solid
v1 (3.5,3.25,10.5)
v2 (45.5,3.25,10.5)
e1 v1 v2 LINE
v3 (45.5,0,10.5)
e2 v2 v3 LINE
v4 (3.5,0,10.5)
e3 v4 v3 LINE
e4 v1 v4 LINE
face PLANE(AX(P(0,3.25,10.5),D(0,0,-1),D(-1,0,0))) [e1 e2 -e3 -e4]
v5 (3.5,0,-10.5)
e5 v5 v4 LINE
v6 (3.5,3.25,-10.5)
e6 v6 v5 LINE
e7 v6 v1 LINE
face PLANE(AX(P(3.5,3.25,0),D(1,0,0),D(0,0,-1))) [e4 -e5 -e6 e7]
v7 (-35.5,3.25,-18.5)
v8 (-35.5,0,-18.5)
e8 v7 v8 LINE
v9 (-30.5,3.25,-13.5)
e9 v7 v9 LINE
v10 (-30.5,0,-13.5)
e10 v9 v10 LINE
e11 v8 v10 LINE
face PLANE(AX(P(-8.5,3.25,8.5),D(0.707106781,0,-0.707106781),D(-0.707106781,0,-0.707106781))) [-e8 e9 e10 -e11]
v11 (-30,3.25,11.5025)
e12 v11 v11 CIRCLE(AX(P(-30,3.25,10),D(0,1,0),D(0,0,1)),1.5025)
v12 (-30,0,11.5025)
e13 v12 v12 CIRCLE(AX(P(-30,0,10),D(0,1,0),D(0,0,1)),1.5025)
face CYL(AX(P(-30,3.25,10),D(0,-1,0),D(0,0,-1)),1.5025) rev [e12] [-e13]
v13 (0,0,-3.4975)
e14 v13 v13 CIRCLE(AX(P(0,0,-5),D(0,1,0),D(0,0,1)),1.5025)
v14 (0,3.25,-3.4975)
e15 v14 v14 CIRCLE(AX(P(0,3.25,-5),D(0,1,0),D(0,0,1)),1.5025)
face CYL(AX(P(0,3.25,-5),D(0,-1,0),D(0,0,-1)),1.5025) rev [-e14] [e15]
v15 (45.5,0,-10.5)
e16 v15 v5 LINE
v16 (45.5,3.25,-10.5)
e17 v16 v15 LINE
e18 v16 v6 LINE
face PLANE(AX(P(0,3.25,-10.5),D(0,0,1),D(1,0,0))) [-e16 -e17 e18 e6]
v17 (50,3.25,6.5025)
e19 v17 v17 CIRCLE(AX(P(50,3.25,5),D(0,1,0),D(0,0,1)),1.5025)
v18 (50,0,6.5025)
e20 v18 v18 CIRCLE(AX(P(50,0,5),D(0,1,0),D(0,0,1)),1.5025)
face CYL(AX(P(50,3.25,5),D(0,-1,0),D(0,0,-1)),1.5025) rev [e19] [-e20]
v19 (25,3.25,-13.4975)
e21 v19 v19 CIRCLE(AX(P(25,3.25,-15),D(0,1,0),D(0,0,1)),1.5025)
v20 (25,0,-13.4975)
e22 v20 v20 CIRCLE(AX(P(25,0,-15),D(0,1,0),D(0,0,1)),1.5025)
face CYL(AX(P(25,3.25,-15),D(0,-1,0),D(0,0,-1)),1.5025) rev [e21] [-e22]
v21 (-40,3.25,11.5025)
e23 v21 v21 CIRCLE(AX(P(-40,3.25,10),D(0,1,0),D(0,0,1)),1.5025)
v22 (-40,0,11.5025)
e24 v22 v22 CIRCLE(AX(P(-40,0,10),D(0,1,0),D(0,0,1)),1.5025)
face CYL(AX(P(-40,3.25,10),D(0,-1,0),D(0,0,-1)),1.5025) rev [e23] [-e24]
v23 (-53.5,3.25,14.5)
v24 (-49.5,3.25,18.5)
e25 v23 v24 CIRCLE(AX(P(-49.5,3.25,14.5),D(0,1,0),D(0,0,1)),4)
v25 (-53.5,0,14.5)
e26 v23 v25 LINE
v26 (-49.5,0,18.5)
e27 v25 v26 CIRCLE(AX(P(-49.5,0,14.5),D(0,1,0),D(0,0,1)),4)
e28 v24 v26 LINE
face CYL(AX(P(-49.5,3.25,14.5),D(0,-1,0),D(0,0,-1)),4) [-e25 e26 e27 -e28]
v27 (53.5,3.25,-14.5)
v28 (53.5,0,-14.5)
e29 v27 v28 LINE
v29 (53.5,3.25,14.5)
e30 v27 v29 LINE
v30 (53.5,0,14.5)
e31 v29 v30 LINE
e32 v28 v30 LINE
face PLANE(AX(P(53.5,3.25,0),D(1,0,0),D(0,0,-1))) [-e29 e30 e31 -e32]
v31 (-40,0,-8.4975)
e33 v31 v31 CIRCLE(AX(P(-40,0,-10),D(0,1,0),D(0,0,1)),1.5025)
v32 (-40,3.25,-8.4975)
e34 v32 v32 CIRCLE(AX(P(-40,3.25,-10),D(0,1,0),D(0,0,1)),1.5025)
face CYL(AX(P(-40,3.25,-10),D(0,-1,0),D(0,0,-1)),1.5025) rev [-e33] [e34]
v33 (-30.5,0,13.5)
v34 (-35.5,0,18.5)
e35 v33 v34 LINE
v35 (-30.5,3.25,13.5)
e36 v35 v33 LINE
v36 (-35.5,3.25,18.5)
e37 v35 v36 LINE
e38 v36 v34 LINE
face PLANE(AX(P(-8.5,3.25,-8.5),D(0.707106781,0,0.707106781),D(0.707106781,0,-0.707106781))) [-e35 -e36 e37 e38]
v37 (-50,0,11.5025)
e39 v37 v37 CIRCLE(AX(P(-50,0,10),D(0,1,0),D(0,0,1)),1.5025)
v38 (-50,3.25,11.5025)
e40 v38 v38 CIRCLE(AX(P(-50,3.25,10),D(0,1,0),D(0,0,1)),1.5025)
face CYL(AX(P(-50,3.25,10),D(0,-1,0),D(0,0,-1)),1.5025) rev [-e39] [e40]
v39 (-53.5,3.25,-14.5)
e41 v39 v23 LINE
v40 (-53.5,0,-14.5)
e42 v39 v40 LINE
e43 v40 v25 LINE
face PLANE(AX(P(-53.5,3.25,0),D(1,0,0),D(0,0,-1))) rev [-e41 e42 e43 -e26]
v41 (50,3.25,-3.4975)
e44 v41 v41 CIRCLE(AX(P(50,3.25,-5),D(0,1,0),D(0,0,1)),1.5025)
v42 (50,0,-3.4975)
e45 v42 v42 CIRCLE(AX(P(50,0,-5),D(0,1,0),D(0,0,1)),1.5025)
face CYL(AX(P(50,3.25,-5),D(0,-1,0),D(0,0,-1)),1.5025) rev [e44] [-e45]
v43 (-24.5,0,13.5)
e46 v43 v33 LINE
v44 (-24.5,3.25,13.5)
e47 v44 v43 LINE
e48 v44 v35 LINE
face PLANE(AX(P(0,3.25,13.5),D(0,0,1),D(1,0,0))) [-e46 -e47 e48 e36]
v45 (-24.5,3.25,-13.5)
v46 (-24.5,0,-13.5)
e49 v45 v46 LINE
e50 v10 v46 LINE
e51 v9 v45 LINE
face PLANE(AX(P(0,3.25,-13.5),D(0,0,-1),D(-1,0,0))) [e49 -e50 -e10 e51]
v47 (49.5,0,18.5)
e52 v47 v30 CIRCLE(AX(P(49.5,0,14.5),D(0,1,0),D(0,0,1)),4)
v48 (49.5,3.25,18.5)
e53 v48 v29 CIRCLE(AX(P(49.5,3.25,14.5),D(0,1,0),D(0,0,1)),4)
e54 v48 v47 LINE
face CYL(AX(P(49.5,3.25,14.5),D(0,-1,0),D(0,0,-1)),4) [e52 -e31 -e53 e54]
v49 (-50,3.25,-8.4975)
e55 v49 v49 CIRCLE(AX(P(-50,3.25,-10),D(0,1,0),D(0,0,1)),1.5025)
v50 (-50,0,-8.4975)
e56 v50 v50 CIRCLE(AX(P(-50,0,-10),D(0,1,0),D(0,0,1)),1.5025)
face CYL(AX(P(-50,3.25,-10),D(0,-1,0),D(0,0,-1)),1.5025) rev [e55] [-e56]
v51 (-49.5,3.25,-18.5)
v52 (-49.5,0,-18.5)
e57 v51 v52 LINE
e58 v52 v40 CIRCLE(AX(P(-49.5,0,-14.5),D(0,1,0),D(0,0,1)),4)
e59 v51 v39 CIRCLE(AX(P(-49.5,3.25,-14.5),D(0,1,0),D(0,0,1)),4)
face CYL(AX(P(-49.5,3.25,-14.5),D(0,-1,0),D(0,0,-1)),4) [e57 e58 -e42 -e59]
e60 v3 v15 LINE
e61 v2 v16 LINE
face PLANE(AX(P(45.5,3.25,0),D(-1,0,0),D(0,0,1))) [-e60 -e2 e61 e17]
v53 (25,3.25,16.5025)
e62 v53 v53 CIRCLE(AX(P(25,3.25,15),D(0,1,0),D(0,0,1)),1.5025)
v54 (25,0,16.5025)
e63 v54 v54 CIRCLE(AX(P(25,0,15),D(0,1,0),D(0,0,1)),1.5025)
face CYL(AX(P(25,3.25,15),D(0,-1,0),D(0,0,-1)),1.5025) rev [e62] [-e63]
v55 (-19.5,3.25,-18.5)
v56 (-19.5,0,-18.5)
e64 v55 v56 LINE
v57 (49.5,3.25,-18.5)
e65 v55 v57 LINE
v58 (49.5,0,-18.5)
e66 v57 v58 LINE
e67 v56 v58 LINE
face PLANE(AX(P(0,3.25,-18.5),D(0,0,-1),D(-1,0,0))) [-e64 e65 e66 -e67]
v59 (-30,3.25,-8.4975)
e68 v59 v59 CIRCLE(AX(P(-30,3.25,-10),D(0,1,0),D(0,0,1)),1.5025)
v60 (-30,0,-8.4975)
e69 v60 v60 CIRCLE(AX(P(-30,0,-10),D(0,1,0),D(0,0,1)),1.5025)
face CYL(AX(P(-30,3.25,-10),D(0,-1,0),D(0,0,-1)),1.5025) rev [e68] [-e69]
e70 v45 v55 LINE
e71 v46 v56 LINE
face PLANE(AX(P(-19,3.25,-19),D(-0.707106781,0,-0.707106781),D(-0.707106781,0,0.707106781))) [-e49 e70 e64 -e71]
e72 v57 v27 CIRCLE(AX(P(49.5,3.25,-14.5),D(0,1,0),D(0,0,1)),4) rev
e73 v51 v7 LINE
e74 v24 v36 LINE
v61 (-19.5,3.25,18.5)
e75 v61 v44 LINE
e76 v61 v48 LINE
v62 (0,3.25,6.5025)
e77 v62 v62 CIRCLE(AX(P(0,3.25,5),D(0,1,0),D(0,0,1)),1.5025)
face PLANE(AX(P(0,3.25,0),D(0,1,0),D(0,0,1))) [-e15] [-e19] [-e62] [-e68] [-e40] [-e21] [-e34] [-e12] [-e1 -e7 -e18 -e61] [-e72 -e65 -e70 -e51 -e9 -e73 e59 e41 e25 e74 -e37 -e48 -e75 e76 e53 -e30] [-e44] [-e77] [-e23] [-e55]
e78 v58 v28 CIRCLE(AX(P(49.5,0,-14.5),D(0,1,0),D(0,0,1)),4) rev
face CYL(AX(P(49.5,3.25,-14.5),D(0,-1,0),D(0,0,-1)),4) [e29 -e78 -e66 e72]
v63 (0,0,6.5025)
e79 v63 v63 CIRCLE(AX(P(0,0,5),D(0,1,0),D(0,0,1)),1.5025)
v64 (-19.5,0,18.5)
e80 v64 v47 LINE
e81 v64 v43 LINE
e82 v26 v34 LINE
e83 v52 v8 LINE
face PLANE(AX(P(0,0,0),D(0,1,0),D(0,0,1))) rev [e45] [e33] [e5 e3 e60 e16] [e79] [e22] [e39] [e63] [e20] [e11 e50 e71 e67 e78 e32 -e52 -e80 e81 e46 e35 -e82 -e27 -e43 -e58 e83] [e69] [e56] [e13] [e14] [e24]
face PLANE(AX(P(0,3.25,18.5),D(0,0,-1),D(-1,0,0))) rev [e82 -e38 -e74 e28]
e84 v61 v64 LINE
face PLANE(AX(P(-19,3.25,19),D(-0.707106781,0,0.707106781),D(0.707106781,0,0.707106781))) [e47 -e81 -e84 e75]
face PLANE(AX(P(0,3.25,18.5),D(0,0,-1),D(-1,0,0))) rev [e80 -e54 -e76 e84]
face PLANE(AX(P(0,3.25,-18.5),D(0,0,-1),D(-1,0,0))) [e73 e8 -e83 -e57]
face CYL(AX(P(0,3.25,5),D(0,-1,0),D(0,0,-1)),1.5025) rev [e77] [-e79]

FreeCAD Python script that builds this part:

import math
import FreeCAD as App
import Part
import Sketcher
from FreeCAD import Vector


def add_polygon(sketch, points):
    """Adds a closed chain of lines whose ends are joined by coincident constraints."""
    first, n = sketch.GeometryCount, len(points)
    for a, b in zip(points, points[1:] + points[:1]):
        sketch.addGeometry(Part.LineSegment(App.Vector(*a, 0), App.Vector(*b, 0)), False)
    for i in range(n):
        sketch.addConstraint(Sketcher.Constraint("Coincident", first + i, 2, first + (i + 1) % n, 1))

doc = App.newDocument("Part")
body = doc.addObject("PartDesign::Body", "Body")

# Sketch on XZ plane
sketch1 = body.newObject("Sketcher::SketchObject", "Sketch")
sketch1.AttachmentSupport = (doc.getObject("XZ_Plane"), [""])
sketch1.MapMode = "FlatFace"
sketch1.addGeometry(Part.LineSegment(Vector(-35.5, -18.5, 0), Vector(-49.5, -18.5, 0)), False)  # 0
sketch1.addGeometry(Part.ArcOfCircle(Part.Circle(Vector(-49.5, -14.5, 0), Vector(0, 0, 1), 4), math.radians(180), math.radians(270)), False)  # 1
sketch1.addGeometry(Part.LineSegment(Vector(-53.5, -14.5, 0), Vector(-53.5, 14.5, 0)), False)  # 2
sketch1.addGeometry(Part.ArcOfCircle(Part.Circle(Vector(-49.5, 14.5, 0), Vector(0, 0, 1), 4), math.radians(90), math.radians(180)), False)  # 3
sketch1.addGeometry(Part.LineSegment(Vector(-49.5, 18.5, 0), Vector(-35.5, 18.5, 0)), False)  # 4
sketch1.addGeometry(Part.LineSegment(Vector(-35.5, 18.5, 0), Vector(-30.5, 13.5, 0)), False)  # 5
sketch1.addGeometry(Part.LineSegment(Vector(-30.5, 13.5, 0), Vector(-24.5, 13.5, 0)), False)  # 6
sketch1.addGeometry(Part.LineSegment(Vector(-24.5, 13.5, 0), Vector(-19.5, 18.5, 0)), False)  # 7
sketch1.addGeometry(Part.LineSegment(Vector(-19.5, 18.5, 0), Vector(49.5, 18.5, 0)), False)  # 8
sketch1.addGeometry(Part.ArcOfCircle(Part.Circle(Vector(49.5, 14.5, 0), Vector(0, 0, 1), 4), math.radians(0), math.radians(90)), False)  # 9
sketch1.addGeometry(Part.LineSegment(Vector(53.5, 14.5, 0), Vector(53.5, -14.5, 0)), False)  # 10
sketch1.addGeometry(Part.ArcOfCircle(Part.Circle(Vector(49.5, -14.5, 0), Vector(0, 0, 1), 4), math.radians(-90), math.radians(0)), False)  # 11
sketch1.addGeometry(Part.LineSegment(Vector(49.5, -18.5, 0), Vector(-19.5, -18.5, 0)), False)  # 12
sketch1.addGeometry(Part.LineSegment(Vector(-19.5, -18.5, 0), Vector(-24.5, -13.5, 0)), False)  # 13
sketch1.addGeometry(Part.LineSegment(Vector(-24.5, -13.5, 0), Vector(-30.5, -13.5, 0)), False)  # 14
sketch1.addGeometry(Part.LineSegment(Vector(-30.5, -13.5, 0), Vector(-35.5, -18.5, 0)), False)  # 15
sketch1.addGeometry(Part.Circle(Vector(25, 15, 0), Vector(0, 0, 1), 1.5), False)  # 16
sketch1.addGeometry(Part.Circle(Vector(50, 5, 0), Vector(0, 0, 1), 1.5), False)  # 17
sketch1.addGeometry(Part.Circle(Vector(-30, 10, 0), Vector(0, 0, 1), 1.5), False)  # 18
sketch1.addGeometry(Part.Circle(Vector(-40, 10, 0), Vector(0, 0, 1), 1.5), False)  # 19
sketch1.addGeometry(Part.Circle(Vector(-50, 10, 0), Vector(0, 0, 1), 1.5), False)  # 20
sketch1.addGeometry(Part.Circle(Vector(0, 5, 0), Vector(0, 0, 1), 1.5), False)  # 21
sketch1.addGeometry(Part.Circle(Vector(50, -5, 0), Vector(0, 0, 1), 1.5), False)  # 22
add_polygon(sketch1, [(3.5, 10.5), (3.5, -10.5), (45.5, -10.5), (45.5, 10.5)])  # lines 23-26
sketch1.addGeometry(Part.Circle(Vector(25, -15, 0), Vector(0, 0, 1), 1.5), False)  # 27
sketch1.addGeometry(Part.Circle(Vector(0, -5, 0), Vector(0, 0, 1), 1.5), False)  # 28
sketch1.addGeometry(Part.Circle(Vector(-30, -10, 0), Vector(0, 0, 1), 1.5), False)  # 29
sketch1.addGeometry(Part.Circle(Vector(-40, -10, 0), Vector(0, 0, 1), 1.5), False)  # 30
sketch1.addGeometry(Part.Circle(Vector(-50, -10, 0), Vector(0, 0, 1), 1.5), False)  # 31
sketch1.addConstraint([
    Sketcher.Constraint("Tangent", 0, 2, 1, 2),
    Sketcher.Constraint("Tangent", 1, 1, 2, 1),
    Sketcher.Constraint("Tangent", 2, 2, 3, 2),
    Sketcher.Constraint("Tangent", 3, 1, 4, 1),
    Sketcher.Constraint("Coincident", 4, 2, 5, 1),
    Sketcher.Constraint("Coincident", 5, 2, 6, 1),
    Sketcher.Constraint("Coincident", 6, 2, 7, 1),
    Sketcher.Constraint("Coincident", 7, 2, 8, 1),
    Sketcher.Constraint("Tangent", 8, 2, 9, 2),
    Sketcher.Constraint("Tangent", 9, 1, 10, 1),
    Sketcher.Constraint("Tangent", 10, 2, 11, 2),
    Sketcher.Constraint("Tangent", 11, 1, 12, 1),
    Sketcher.Constraint("Coincident", 12, 2, 13, 1),
    Sketcher.Constraint("Coincident", 13, 2, 14, 1),
    Sketcher.Constraint("Coincident", 14, 2, 15, 1),
    Sketcher.Constraint("Coincident", 15, 2, 0, 1),
    Sketcher.Constraint("Horizontal", 0),
    Sketcher.Constraint("Vertical", 2),
    Sketcher.Constraint("Horizontal", 4),
    Sketcher.Constraint("Horizontal", 6),
    Sketcher.Constraint("Horizontal", 8),
    Sketcher.Constraint("Vertical", 10),
    Sketcher.Constraint("Horizontal", 12),
    Sketcher.Constraint("Horizontal", 14),
    Sketcher.Constraint("Vertical", 23),
    Sketcher.Constraint("Horizontal", 24),
    Sketcher.Constraint("Vertical", 25),
    Sketcher.Constraint("Horizontal", 26),
    Sketcher.Constraint("Equal", 1, 3),
    Sketcher.Constraint("Equal", 3, 9),
    Sketcher.Constraint("Equal", 9, 11),
    Sketcher.Constraint("Equal", 16, 17),
    Sketcher.Constraint("Equal", 17, 18),
    Sketcher.Constraint("Equal", 18, 19),
    Sketcher.Constraint("Equal", 19, 20),
    Sketcher.Constraint("Equal", 20, 21),
    Sketcher.Constraint("Equal", 21, 22),
    Sketcher.Constraint("Equal", 22, 27),
    Sketcher.Constraint("Equal", 27, 28),
    Sketcher.Constraint("Equal", 28, 29),
    Sketcher.Constraint("Equal", 29, 30),
    Sketcher.Constraint("Equal", 30, 31),
    Sketcher.Constraint("Symmetric", 1, 3, 9, 3, -1, 1),
    Sketcher.Constraint("Symmetric", 21, 3, 28, 3, -1, 1),
    Sketcher.Constraint("Symmetric", 17, 3, 22, 3, -1),
    Sketcher.Constraint("Symmetric", 16, 3, 27, 3, -1),
    Sketcher.Constraint("Symmetric", 18, 3, 29, 3, -1),
    Sketcher.Constraint("Symmetric", 19, 3, 30, 3, -1),
    Sketcher.Constraint("Symmetric", 20, 3, 31, 3, -1),
    Sketcher.Constraint("Symmetric", 7, 2, 12, 2, -1),
    Sketcher.Constraint("Symmetric", 6, 2, 13, 2, -1),
    Sketcher.Constraint("Symmetric", 4, 2, 15, 2, -1),
    Sketcher.Constraint("PointOnObject", 21, 3, -2),
    Sketcher.Constraint("Perpendicular", 5, 7),
    Sketcher.Constraint("Perpendicular", 7, 13),
    Sketcher.Constraint("Perpendicular", 13, 15),
    Sketcher.Constraint("Horizontal", 18, 3, 19, 3),
    Sketcher.Constraint("Horizontal", 19, 3, 20, 3),
    Sketcher.Constraint("Horizontal", 17, 3, 21, 3),
    Sketcher.Constraint("Radius", 1, 4.0),
    Sketcher.Constraint("DistanceX", 0, 2, 0, 1, 14.0),
    Sketcher.Constraint("DistanceX", 6, 1, 6, 2, 6.0),
    Sketcher.Constraint("DistanceX", 8, 1, 8, 2, 69.0),
    Sketcher.Constraint("DistanceX", 24, 1, 24, 2, 42.0),
    Sketcher.Constraint("DistanceY", 2, 1, 2, 2, 29.0),
    Sketcher.Constraint("DistanceY", 23, 2, 23, 1, 21.0),
    Sketcher.Constraint("Diameter", 16, 3.005),
    Sketcher.Constraint("DistanceX", -1, 1, 16, 3, 25.0),
    Sketcher.Constraint("DistanceY", -1, 1, 16, 3, 15.0),
    Sketcher.Constraint("DistanceX", -1, 1, 17, 3, 50.0),
    Sketcher.Constraint("DistanceY", -1, 1, 17, 3, 5.0),
    Sketcher.Constraint("DistanceX", 18, 3, -1, 1, 30.0),
    Sketcher.Constraint("DistanceY", -1, 1, 18, 3, 10.0),
    Sketcher.Constraint("DistanceX", 19, 3, -1, 1, 40.0),
    Sketcher.Constraint("DistanceX", 20, 3, -1, 1, 50.0),
    Sketcher.Constraint("DistanceX", 3, 3, 9, 3, 99.0),
    Sketcher.Constraint("DistanceX", 12, 2, 23, 2, 23.0),
    Sketcher.Constraint("DistanceY", 12, 2, 23, 2, 8.0),
])
pad1 = body.newObject("PartDesign::Pad", "Pad")
pad1.Profile = sketch1
pad1.Length = 3.25
pad1.Reversed = True

doc.recompute()
